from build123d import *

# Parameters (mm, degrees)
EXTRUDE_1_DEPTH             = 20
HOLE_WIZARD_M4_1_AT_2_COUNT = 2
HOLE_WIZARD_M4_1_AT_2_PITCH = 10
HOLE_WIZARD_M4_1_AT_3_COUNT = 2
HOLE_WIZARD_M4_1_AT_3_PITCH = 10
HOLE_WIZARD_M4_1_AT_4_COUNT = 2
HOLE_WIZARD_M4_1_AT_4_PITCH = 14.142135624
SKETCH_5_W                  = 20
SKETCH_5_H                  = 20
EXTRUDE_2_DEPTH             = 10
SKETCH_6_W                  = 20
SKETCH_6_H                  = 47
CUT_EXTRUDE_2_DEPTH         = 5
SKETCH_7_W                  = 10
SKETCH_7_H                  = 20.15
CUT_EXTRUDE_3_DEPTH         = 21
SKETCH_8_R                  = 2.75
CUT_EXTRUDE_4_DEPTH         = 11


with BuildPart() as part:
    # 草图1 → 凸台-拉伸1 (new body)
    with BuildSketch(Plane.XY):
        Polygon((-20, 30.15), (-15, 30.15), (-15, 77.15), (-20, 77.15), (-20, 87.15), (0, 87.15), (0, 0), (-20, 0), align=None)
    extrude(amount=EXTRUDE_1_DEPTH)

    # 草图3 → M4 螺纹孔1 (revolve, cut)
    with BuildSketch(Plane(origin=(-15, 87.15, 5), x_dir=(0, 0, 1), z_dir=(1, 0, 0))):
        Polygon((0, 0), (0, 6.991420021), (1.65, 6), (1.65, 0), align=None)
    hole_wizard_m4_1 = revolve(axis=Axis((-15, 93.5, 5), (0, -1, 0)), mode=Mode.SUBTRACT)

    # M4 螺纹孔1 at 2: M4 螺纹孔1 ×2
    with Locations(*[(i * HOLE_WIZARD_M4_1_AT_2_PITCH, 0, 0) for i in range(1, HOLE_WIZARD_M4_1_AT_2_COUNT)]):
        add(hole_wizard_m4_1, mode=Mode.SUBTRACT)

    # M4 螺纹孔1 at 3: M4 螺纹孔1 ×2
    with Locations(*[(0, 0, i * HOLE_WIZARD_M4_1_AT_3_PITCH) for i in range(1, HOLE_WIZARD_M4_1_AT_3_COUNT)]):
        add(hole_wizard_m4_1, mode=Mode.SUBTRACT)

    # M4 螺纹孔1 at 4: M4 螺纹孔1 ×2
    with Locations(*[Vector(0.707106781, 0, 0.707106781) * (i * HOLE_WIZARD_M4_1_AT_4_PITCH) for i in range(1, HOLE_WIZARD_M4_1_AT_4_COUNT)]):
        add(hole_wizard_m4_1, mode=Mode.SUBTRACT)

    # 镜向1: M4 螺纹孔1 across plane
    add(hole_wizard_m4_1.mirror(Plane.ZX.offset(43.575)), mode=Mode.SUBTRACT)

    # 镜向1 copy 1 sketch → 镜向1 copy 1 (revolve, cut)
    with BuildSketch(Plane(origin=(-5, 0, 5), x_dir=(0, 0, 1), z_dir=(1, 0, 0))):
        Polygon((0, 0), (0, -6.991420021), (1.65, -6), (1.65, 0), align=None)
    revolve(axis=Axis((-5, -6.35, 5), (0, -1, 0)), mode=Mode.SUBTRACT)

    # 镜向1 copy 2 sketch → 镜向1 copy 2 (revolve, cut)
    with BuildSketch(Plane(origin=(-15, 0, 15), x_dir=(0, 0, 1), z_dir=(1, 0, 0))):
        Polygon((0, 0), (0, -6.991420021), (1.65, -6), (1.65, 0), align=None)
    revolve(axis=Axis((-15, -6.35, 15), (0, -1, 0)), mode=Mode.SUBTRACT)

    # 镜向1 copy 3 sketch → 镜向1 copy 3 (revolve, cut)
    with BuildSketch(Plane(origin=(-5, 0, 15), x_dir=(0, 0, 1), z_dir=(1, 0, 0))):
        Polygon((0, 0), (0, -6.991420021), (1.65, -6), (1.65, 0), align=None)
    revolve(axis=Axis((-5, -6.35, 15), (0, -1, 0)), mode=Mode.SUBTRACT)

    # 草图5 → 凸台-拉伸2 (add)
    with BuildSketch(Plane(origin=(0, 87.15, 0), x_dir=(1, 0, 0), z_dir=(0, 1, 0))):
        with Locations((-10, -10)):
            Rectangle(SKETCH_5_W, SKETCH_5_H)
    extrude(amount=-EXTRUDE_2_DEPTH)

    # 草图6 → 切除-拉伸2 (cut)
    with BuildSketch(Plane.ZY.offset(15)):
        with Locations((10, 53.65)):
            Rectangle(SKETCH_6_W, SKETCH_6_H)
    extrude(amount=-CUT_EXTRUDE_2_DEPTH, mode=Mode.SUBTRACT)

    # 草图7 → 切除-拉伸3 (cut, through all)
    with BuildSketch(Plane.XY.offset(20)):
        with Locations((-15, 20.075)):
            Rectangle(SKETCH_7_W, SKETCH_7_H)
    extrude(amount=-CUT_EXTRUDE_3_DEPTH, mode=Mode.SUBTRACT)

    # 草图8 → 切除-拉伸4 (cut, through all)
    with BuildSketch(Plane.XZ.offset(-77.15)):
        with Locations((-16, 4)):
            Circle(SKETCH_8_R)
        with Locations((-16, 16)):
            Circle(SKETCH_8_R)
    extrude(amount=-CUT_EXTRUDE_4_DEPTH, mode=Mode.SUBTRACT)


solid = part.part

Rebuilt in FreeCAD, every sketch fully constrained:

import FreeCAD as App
import Part
import Sketcher
from FreeCAD import Vector
Q = App.Units.Quantity

doc = App.newDocument("Part")
body = doc.addObject("PartDesign::Body", "Body")

# Sketch on XY plane
sketch1 = body.newObject("Sketcher::SketchObject", "Sketch")
sketch1.AttachmentSupport = (doc.getObject("XY_Plane"), [""])
sketch1.MapMode = "FlatFace"
sketch1.addGeometry([
    Part.LineSegment(Vector(-15, 30.15, 0), Vector(-20, 30.15, 0)),  # 0
    Part.LineSegment(Vector(-20, 30.15, 0), Vector(-20, 0, 0)),  # 1
    Part.LineSegment(Vector(-20, 0, 0), Vector(0, 0, 0)),  # 2
    Part.LineSegment(Vector(0, 0, 0), Vector(0, 87.15, 0)),  # 3
    Part.LineSegment(Vector(0, 87.15, 0), Vector(-20, 87.15, 0)),  # 4
    Part.LineSegment(Vector(-20, 87.15, 0), Vector(-20, 77.15, 0)),  # 5
    Part.LineSegment(Vector(-20, 77.15, 0), Vector(-15, 77.15, 0)),  # 6
    Part.LineSegment(Vector(-15, 77.15, 0), Vector(-15, 30.15, 0)),  # 7
], False)
sketch1.addConstraint([
    Sketcher.Constraint("Coincident", 0, 2, 1, 1),
    Sketcher.Constraint("Coincident", 1, 2, 2, 1),
    Sketcher.Constraint("Coincident", 2, 2, 3, 1),
    Sketcher.Constraint("Coincident", 3, 2, 4, 1),
    Sketcher.Constraint("Coincident", 4, 2, 5, 1),
    Sketcher.Constraint("Coincident", 5, 2, 6, 1),
    Sketcher.Constraint("Coincident", 6, 2, 7, 1),
    Sketcher.Constraint("Coincident", 7, 2, 0, 1),
    Sketcher.Constraint("Horizontal", 0),
    Sketcher.Constraint("Vertical", 1),
    Sketcher.Constraint("Horizontal", 2),
    Sketcher.Constraint("Vertical", 3),
    Sketcher.Constraint("Horizontal", 4),
    Sketcher.Constraint("Vertical", 5),
    Sketcher.Constraint("Horizontal", 6),
    Sketcher.Constraint("Vertical", 7),
    Sketcher.Constraint("Coincident", 2, 2, -1, 1),
    Sketcher.Constraint("Vertical", 1, 2, 4, 2),
    Sketcher.Constraint("DistanceX", 0, 2, 0, 1, 5.0),
    Sketcher.Constraint("DistanceX", 2, 1, 2, 2, 20.0),
    Sketcher.Constraint("DistanceY", 5, 2, 5, 1, 10.0),
    Sketcher.Constraint("DistanceY", 7, 2, 7, 1, 47.0),
    Sketcher.Constraint("DistanceY", 1, 2, 1, 1, 30.15),
])
pad1 = body.newObject("PartDesign::Pad", "Pad")
pad1.Profile = sketch1
pad1.Length = 20

# Sketch on YZ plane
sketch2 = body.newObject("Sketcher::SketchObject", "Sketch001")
sketch2.AttachmentSupport = (doc.getObject("YZ_Plane"), [""])
sketch2.MapMode = "FlatFace"
sketch2.AttachmentOffset = App.Placement(Vector(0, 0, -15), App.Rotation())
sketch2.addGeometry([
    Part.LineSegment(Vector(80.15858, 5, 0), Vector(87.15, 5, 0)),
    Part.LineSegment(Vector(87.15, 5, 0), Vector(87.15, 6.65, 0)),
    Part.LineSegment(Vector(87.15, 6.65, 0), Vector(81.15, 6.65, 0)),
    Part.LineSegment(Vector(81.15, 6.65, 0), Vector(80.15858, 5, 0)),
], False)
sketch2.addGeometry(Part.LineSegment(Vector(87.15, 5, 0), Vector(80.15858, 5, 0)), True)  # axis
sketch2.addConstraint([
    Sketcher.Constraint("Coincident", 0, 2, 1, 1),
    Sketcher.Constraint("Coincident", 1, 2, 2, 1),
    Sketcher.Constraint("Coincident", 2, 2, 3, 1),
    Sketcher.Constraint("Coincident", 3, 2, 0, 1),
    Sketcher.Constraint("Horizontal", 0),
    Sketcher.Constraint("Vertical", 1),
    Sketcher.Constraint("Horizontal", 2),
    Sketcher.Constraint("Horizontal", 4),
    Sketcher.Constraint("Coincident", 4, 1, 0, 2),
    Sketcher.Constraint("Equal", 0, 4),
    Sketcher.Constraint("DistanceX", 2, 2, 2, 1, 6.0),
    Sketcher.Constraint("Angle", 3, Q("-121 deg")),
    Sketcher.Constraint("DistanceY", -1, 1, 0, 2, 5.0),
    Sketcher.Constraint("DistanceY", 1, 1, 1, 2, 1.65),
    Sketcher.Constraint("DistanceX", -1, 1, 0, 2, 87.15),
])
groove = body.newObject("PartDesign::Groove", "Groove")
groove.Profile = sketch2
groove.ReferenceAxis = (sketch2, ["Axis0"])
groove.Angle = 360
doc.recompute()

linearpattern = body.newObject("PartDesign::LinearPattern", "LinearPattern")
linearpattern.Originals = [groove]
linearpattern.Direction = (doc.getObject("X_Axis"), [""])
linearpattern.Mode = "offset"
linearpattern.Offset = 10
linearpattern.Occurrences = 2
body.Tip = linearpattern
doc.recompute()

linearpattern2 = body.newObject("PartDesign::LinearPattern", "LinearPattern001")
linearpattern2.Originals = [groove]
linearpattern2.Direction = (doc.getObject("Z_Axis"), [""])
linearpattern2.Mode = "offset"
linearpattern2.Offset = 10
linearpattern2.Occurrences = 2
body.Tip = linearpattern2
doc.recompute()

datumline = body.newObject("PartDesign::Line", "DatumLine")
datumline.Placement = App.Placement(Vector(0, 0, 0), App.Rotation(Vector(0, 0, 1), Vector(0.707106781, 0, 0.707106781)))
linearpattern3 = body.newObject("PartDesign::LinearPattern", "LinearPattern002")
linearpattern3.Originals = [groove]
linearpattern3.Direction = (datumline, [""])
linearpattern3.Mode = "offset"
linearpattern3.Offset = 14.142136
linearpattern3.Occurrences = 2
body.Tip = linearpattern3
doc.recompute()

datumplane = body.newObject("PartDesign::Plane", "DatumPlane")
datumplane.AttachmentSupport = (doc.getObject("XZ_Plane"), [""])
datumplane.MapMode = "FlatFace"
datumplane.AttachmentOffset = App.Placement(Vector(0, 0, -43.575), App.Rotation())
mirrored = body.newObject("PartDesign::Mirrored", "Mirrored")
mirrored.Originals = [groove]
mirrored.MirrorPlane = (datumplane, [""])
body.Tip = mirrored

# Sketch on YZ plane
sketch3 = body.newObject("Sketcher::SketchObject", "Sketch002")
sketch3.AttachmentSupport = (doc.getObject("YZ_Plane"), [""])
sketch3.MapMode = "FlatFace"
sketch3.AttachmentOffset = App.Placement(Vector(0, 0, -5), App.Rotation())
sketch3.addGeometry([
    Part.LineSegment(Vector(0, 5, 0), Vector(6.99142, 5, 0)),
    Part.LineSegment(Vector(6.99142, 5, 0), Vector(6, 6.65, 0)),
    Part.LineSegment(Vector(6, 6.65, 0), Vector(0, 6.65, 0)),
    Part.LineSegment(Vector(0, 6.65, 0), Vector(0, 5, 0)),
], False)
sketch3.addGeometry(Part.LineSegment(Vector(6.99142, 5, 0), Vector(0, 5, 0)), True)  # axis
sketch3.addConstraint([
    Sketcher.Constraint("Coincident", 0, 2, 1, 1),
    Sketcher.Constraint("Coincident", 1, 2, 2, 1),
    Sketcher.Constraint("Coincident", 2, 2, 3, 1),
    Sketcher.Constraint("Coincident", 3, 2, 0, 1),
    Sketcher.Constraint("Horizontal", 0),
    Sketcher.Constraint("Horizontal", 2),
    Sketcher.Constraint("Vertical", 3),
    Sketcher.Constraint("Horizontal", 4),
    Sketcher.Constraint("Coincident", 4, 1, 0, 2),
    Sketcher.Constraint("PointOnObject", 2, 2, -2),
    Sketcher.Constraint("PointOnObject", 4, 2, -2),
    Sketcher.Constraint("DistanceX", 2, 2, 2, 1, 6.0),
    Sketcher.Constraint("Angle", 1, Q("121 deg")),
    Sketcher.Constraint("DistanceY", -1, 1, 0, 2, 5.0),
    Sketcher.Constraint("DistanceY", 3, 2, 3, 1, 1.65),
])
groove2 = body.newObject("PartDesign::Groove", "Groove001")
groove2.Profile = sketch3
groove2.ReferenceAxis = (sketch3, ["Axis0"])
groove2.Angle = 360

# Sketch on YZ plane
sketch4 = body.newObject("Sketcher::SketchObject", "Sketch003")
sketch4.AttachmentSupport = (doc.getObject("YZ_Plane"), [""])
sketch4.MapMode = "FlatFace"
sketch4.AttachmentOffset = App.Placement(Vector(0, 0, -15), App.Rotation())
sketch4.addGeometry([
    Part.LineSegment(Vector(0, 15, 0), Vector(6.99142, 15, 0)),
    Part.LineSegment(Vector(6.99142, 15, 0), Vector(6, 16.65, 0)),
    Part.LineSegment(Vector(6, 16.65, 0), Vector(0, 16.65, 0)),
    Part.LineSegment(Vector(0, 16.65, 0), Vector(0, 15, 0)),
], False)
sketch4.addGeometry(Part.LineSegment(Vector(6.99142, 15, 0), Vector(0, 15, 0)), True)  # axis
sketch4.addConstraint([
    Sketcher.Constraint("Coincident", 0, 2, 1, 1),
    Sketcher.Constraint("Coincident", 1, 2, 2, 1),
    Sketcher.Constraint("Coincident", 2, 2, 3, 1),
    Sketcher.Constraint("Coincident", 3, 2, 0, 1),
    Sketcher.Constraint("Horizontal", 0),
    Sketcher.Constraint("Horizontal", 2),
    Sketcher.Constraint("Vertical", 3),
    Sketcher.Constraint("Horizontal", 4),
    Sketcher.Constraint("Coincident", 4, 1, 0, 2),
    Sketcher.Constraint("PointOnObject", 2, 2, -2),
    Sketcher.Constraint("PointOnObject", 4, 2, -2),
    Sketcher.Constraint("DistanceX", 2, 2, 2, 1, 6.0),
    Sketcher.Constraint("Angle", 1, Q("121 deg")),
    Sketcher.Constraint("DistanceY", -1, 1, 0, 2, 15.0),
    Sketcher.Constraint("DistanceY", 3, 2, 3, 1, 1.65),
])
groove3 = body.newObject("PartDesign::Groove", "Groove002")
groove3.Profile = sketch4
groove3.ReferenceAxis = (sketch4, ["Axis0"])
groove3.Angle = 360

# Sketch on YZ plane
sketch5 = body.newObject("Sketcher::SketchObject", "Sketch004")
sketch5.AttachmentSupport = (doc.getObject("YZ_Plane"), [""])
sketch5.MapMode = "FlatFace"
sketch5.AttachmentOffset = App.Placement(Vector(0, 0, -5), App.Rotation())
sketch5.addGeometry([
    Part.LineSegment(Vector(0, 15, 0), Vector(6.99142, 15, 0)),
    Part.LineSegment(Vector(6.99142, 15, 0), Vector(6, 16.65, 0)),
    Part.LineSegment(Vector(6, 16.65, 0), Vector(0, 16.65, 0)),
    Part.LineSegment(Vector(0, 16.65, 0), Vector(0, 15, 0)),
], False)
sketch5.addGeometry(Part.LineSegment(Vector(6.99142, 15, 0), Vector(0, 15, 0)), True)  # axis
sketch5.addConstraint([
    Sketcher.Constraint("Coincident", 0, 2, 1, 1),
    Sketcher.Constraint("Coincident", 1, 2, 2, 1),
    Sketcher.Constraint("Coincident", 2, 2, 3, 1),
    Sketcher.Constraint("Coincident", 3, 2, 0, 1),
    Sketcher.Constraint("Horizontal", 0),
    Sketcher.Constraint("Horizontal", 2),
    Sketcher.Constraint("Vertical", 3),
    Sketcher.Constraint("Horizontal", 4),
    Sketcher.Constraint("Coincident", 4, 1, 0, 2),
    Sketcher.Constraint("PointOnObject", 2, 2, -2),
    Sketcher.Constraint("PointOnObject", 4, 2, -2),
    Sketcher.Constraint("DistanceX", 2, 2, 2, 1, 6.0),
    Sketcher.Constraint("Angle", 1, Q("121 deg")),
    Sketcher.Constraint("DistanceY", -1, 1, 0, 2, 15.0),
    Sketcher.Constraint("DistanceY", 3, 2, 3, 1, 1.65),
])
groove4 = body.newObject("PartDesign::Groove", "Groove003")
groove4.Profile = sketch5
groove4.ReferenceAxis = (sketch5, ["Axis0"])
groove4.Angle = 360

# Sketch on XZ plane
sketch6 = body.newObject("Sketcher::SketchObject", "Sketch005")
sketch6.AttachmentSupport = (doc.getObject("XZ_Plane"), [""])
sketch6.MapMode = "FlatFace"
sketch6.AttachmentOffset = App.Placement(Vector(0, 0, -87.15), App.Rotation())
sketch6.addGeometry([
    Part.LineSegment(Vector(-20, 0, 0), Vector(-20, 20, 0)),
    Part.LineSegment(Vector(-20, 20, 0), Vector(0, 20, 0)),
    Part.LineSegment(Vector(0, 20, 0), Vector(0, 0, 0)),
    Part.LineSegment(Vector(0, 0, 0), Vector(-20, 0, 0)),
], False)
sketch6.addConstraint([
    Sketcher.Constraint("Coincident", 0, 2, 1, 1),
    Sketcher.Constraint("Coincident", 1, 2, 2, 1),
    Sketcher.Constraint("Coincident", 2, 2, 3, 1),
    Sketcher.Constraint("Coincident", 3, 2, 0, 1),
    Sketcher.Constraint("Vertical", 0),
    Sketcher.Constraint("Horizontal", 1),
    Sketcher.Constraint("Vertical", 2),
    Sketcher.Constraint("Horizontal", 3),
    Sketcher.Constraint("Coincident", 2, 2, -1, 1),
    Sketcher.Constraint("Equal", 3, 0),
    Sketcher.Constraint("DistanceX", 1, 1, 1, 2, 20.0),
])
pad2 = body.newObject("PartDesign::Pad", "Pad001")
pad2.Profile = sketch6
pad2.Length = 10

# Sketch on YZ plane
sketch7 = body.newObject("Sketcher::SketchObject", "Sketch006")
sketch7.AttachmentSupport = (doc.getObject("YZ_Plane"), [""])
sketch7.MapMode = "FlatFace"
sketch7.AttachmentOffset = App.Placement(Vector(0, 0, -15), App.Rotation())
sketch7.addGeometry([
    Part.LineSegment(Vector(77.15, 0, 0), Vector(30.15, 0, 0)),
    Part.LineSegment(Vector(30.15, 0, 0), Vector(30.15, 20, 0)),
    Part.LineSegment(Vector(30.15, 20, 0), Vector(77.15, 20, 0)),
    Part.LineSegment(Vector(77.15, 20, 0), Vector(77.15, 0, 0)),
], False)
sketch7.addConstraint([
    Sketcher.Constraint("Coincident", 0, 2, 1, 1),
    Sketcher.Constraint("Coincident", 1, 2, 2, 1),
    Sketcher.Constraint("Coincident", 2, 2, 3, 1),
    Sketcher.Constraint("Coincident", 3, 2, 0, 1),
    Sketcher.Constraint("Horizontal", 0),
    Sketcher.Constraint("Vertical", 1),
    Sketcher.Constraint("Horizontal", 2),
    Sketcher.Constraint("Vertical", 3),
    Sketcher.Constraint("PointOnObject", 0, 2, -1),
    Sketcher.Constraint("DistanceX", 0, 2, 0, 1, 47.0),
    Sketcher.Constraint("DistanceY", 1, 1, 1, 2, 20.0),
    Sketcher.Constraint("DistanceX", -1, 1, 0, 2, 30.15),
])
pocket1 = body.newObject("PartDesign::Pocket", "Pocket")
pocket1.Profile = sketch7
pocket1.Length = 5
pocket1.Reversed = True

# Sketch on XY plane
sketch8 = body.newObject("Sketcher::SketchObject", "Sketch007")
sketch8.AttachmentSupport = (doc.getObject("XY_Plane"), [""])
sketch8.MapMode = "FlatFace"
sketch8.AttachmentOffset = App.Placement(Vector(0, 0, 20), App.Rotation())
sketch8.addGeometry([
    Part.LineSegment(Vector(-20, 30.15, 0), Vector(-20, 10, 0)),
    Part.LineSegment(Vector(-20, 10, 0), Vector(-10, 10, 0)),
    Part.LineSegment(Vector(-10, 10, 0), Vector(-10, 30.15, 0)),
    Part.LineSegment(Vector(-10, 30.15, 0), Vector(-20, 30.15, 0)),
], False)
sketch8.addConstraint([
    Sketcher.Constraint("Coincident", 0, 2, 1, 1),
    Sketcher.Constraint("Coincident", 1, 2, 2, 1),
    Sketcher.Constraint("Coincident", 2, 2, 3, 1),
    Sketcher.Constraint("Coincident", 3, 2, 0, 1),
    Sketcher.Constraint("Vertical", 0),
    Sketcher.Constraint("Horizontal", 1),
    Sketcher.Constraint("Vertical", 2),
    Sketcher.Constraint("Horizontal", 3),
    Sketcher.Constraint("DistanceX", 1, 1, 1, 2, 10.0),
    Sketcher.Constraint("DistanceX", 0, 2, -1, 1, 20.0),
    Sketcher.Constraint("DistanceY", -1, 1, 0, 2, 10.0),
    Sketcher.Constraint("DistanceY", 0, 2, 0, 1, 20.15),
])
pocket2 = body.newObject("PartDesign::Pocket", "Pocket001")
pocket2.Profile = sketch8
pocket2.Type = "ThroughAll"

# Sketch on XZ plane
sketch9 = body.newObject("Sketcher::SketchObject", "Sketch008")
sketch9.AttachmentSupport = (doc.getObject("XZ_Plane"), [""])
sketch9.MapMode = "FlatFace"
sketch9.AttachmentOffset = App.Placement(Vector(0, 0, -77.15), App.Rotation())
sketch9.addGeometry([
    Part.Circle(Vector(-16, 4, 0), Vector(0, 0, 1), 2.75),
    Part.Circle(Vector(-16, 16, 0), Vector(0, 0, 1), 2.75),
], False)
sketch9.addConstraint([
    Sketcher.Constraint("Equal", 0, 1),
    Sketcher.Constraint("Vertical", 0, 3, 1, 3),
    Sketcher.Constraint("Diameter", 0, 5.5),
    Sketcher.Constraint("DistanceX", 0, 3, -1, 1, 16.0),
    Sketcher.Constraint("DistanceY", -1, 1, 0, 3, 4.0),
    Sketcher.Constraint("DistanceY", -1, 1, 1, 3, 16.0),
])
pocket3 = body.newObject("PartDesign::Pocket", "Pocket002")
pocket3.Profile = sketch9
pocket3.Type = "ThroughAll"

doc.recompute()
